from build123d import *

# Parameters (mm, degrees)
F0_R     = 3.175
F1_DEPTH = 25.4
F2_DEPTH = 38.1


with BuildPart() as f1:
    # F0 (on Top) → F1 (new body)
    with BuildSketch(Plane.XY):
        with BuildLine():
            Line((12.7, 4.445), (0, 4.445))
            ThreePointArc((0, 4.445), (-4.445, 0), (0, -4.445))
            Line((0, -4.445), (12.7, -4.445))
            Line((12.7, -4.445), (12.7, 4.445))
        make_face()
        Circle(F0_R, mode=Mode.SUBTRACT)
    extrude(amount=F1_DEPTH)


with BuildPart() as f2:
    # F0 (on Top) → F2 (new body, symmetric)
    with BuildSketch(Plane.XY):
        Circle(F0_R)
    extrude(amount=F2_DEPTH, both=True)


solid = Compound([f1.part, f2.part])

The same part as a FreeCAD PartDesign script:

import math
import FreeCAD as App
import Part
import Sketcher
from FreeCAD import Vector
Q = App.Units.Quantity

doc = App.newDocument("Part")
body = doc.addObject("PartDesign::Body", "Body")

# Sketch on XY plane
sketch1 = doc.addObject("Sketcher::SketchObject", "Sketch")
body.addObject(sketch1)
sketch1.AttachmentSupport = (doc.XY_Plane, [""])
sketch1.MapMode = "FlatFace"
sketch1.addGeometry([
    Part.LineSegment(Vector(12.7, 4.4, 0), Vector(0, 4.4, 0)),  # 0
    Part.ArcOfCircle(Part.Circle(Vector(0, 0, 0), Vector(0, 0, 1), 4.4), math.radians(90), math.radians(270)),  # 1
    Part.LineSegment(Vector(0, -4.4, 0), Vector(12.7, -4.4, 0)),  # 2
    Part.LineSegment(Vector(12.7, -4.4, 0), Vector(12.7, 4.4, 0)),  # 3
    Part.Circle(Vector(0, 0, 0), Vector(0, 0, 1), 3.2),  # 4
], False)
sketch1.addConstraint([
    Sketcher.Constraint("Tangent", 0, 2, 1, 1),
    Sketcher.Constraint("Tangent", 1, 2, 2, 1),
    Sketcher.Constraint("Coincident", 2, 2, 3, 1),
    Sketcher.Constraint("Coincident", 3, 2, 0, 1),
    Sketcher.Constraint("Horizontal", 0),
    Sketcher.Constraint("Horizontal", 2),
    Sketcher.Constraint("Vertical", 3),
    Sketcher.Constraint("Coincident", 1, 3, -1, 1),
    Sketcher.Constraint("Coincident", 4, 3, -1, 1),
    Sketcher.Constraint("Diameter", 4, Q("0.25 in")),
    Sketcher.Constraint("DistanceX", 0, 2, 0, 1, Q("0.5 in")),
    Sketcher.Constraint("Radius", 1, Q("0.175 in")),
])
pad1 = doc.addObject("PartDesign::Pad", "Pad")
body.addObject(pad1)
pad1.Profile = sketch1
pad1.Length = Q("1 in")
body2 = doc.addObject("PartDesign::Body", "Body001")

# Sketch on XY plane
sketch2 = doc.addObject("Sketcher::SketchObject", "Sketch001")
body2.addObject(sketch2)
sketch2.AttachmentSupport = (doc.getObject("XY_Plane001"), [""])
sketch2.MapMode = "FlatFace"
sketch2.addGeometry(Part.Circle(Vector(0, 0, 0), Vector(0, 0, 1), 3.2), False)
sketch2.addConstraint([
    Sketcher.Constraint("Coincident", 0, 3, -1, 1),
    Sketcher.Constraint("Diameter", 0, Q("0.25 in")),
])
pad2 = doc.addObject("PartDesign::Pad", "Pad001")
body2.addObject(pad2)
pad2.Profile = sketch2
pad2.Length = Q("3 in")
pad2.Midplane = True

doc.recompute()
